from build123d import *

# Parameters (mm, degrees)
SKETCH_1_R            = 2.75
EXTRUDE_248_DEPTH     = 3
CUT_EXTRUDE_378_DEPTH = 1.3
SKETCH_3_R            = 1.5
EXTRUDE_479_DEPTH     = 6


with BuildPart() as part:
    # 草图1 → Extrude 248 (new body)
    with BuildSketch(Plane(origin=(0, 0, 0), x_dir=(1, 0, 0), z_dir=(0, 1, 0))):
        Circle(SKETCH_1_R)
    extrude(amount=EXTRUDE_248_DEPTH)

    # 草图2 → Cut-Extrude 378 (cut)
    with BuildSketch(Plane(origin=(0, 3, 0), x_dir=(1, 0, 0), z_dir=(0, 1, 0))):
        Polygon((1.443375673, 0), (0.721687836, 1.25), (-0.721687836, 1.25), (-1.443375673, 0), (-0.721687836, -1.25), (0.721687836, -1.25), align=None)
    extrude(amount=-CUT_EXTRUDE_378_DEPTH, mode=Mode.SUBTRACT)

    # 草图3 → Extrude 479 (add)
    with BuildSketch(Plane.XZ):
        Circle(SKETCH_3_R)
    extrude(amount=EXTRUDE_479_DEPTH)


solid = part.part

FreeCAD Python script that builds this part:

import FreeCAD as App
import Part
import Sketcher
from FreeCAD import Vector
Q = App.Units.Quantity

doc = App.newDocument("Part")
params = doc.addObject("Spreadsheet::Sheet", "Params")
for row, (alias, value) in enumerate([
    ("sketch1_diameter", "5.5 mm"),
    ("pad1_length", "3 mm"),
    ("pocket1_length", "1.3 mm"),
    ("sketch3_diameter", "3 mm"),
    ("pad2_length", "6 mm"),
], start=1):
    params.set(f"A{row}", alias)
    params.set(f"B{row}", "=" + value)
    params.setAlias(f"B{row}", alias)

body = doc.addObject("PartDesign::Body", "Body")

sketch1 = body.newObject("Sketcher::SketchObject", "Sketch")
sketch1.AttachmentSupport = (doc.getObject("XZ_Plane"), [""])
sketch1.MapMode = "FlatFace"
sketch1.addGeometry(Part.Circle(Vector(0, 0, 0), Vector(0, 0, 1), 2.8), False)
sketch1.addConstraint([
    Sketcher.Constraint("Coincident", 0, 3, -1, 1),
    Sketcher.Constraint("Diameter", 0, Q("5.5 mm")),
])
sketch1.setExpression("Constraints[1]", "Params.sketch1_diameter")
pad1 = body.newObject("PartDesign::Pad", "Pad")
pad1.Profile = sketch1
pad1.setExpression("Length", "Params.pad1_length")
pad1.Reversed = True

sketch2 = body.newObject("Sketcher::SketchObject", "Sketch001")
sketch2.AttachmentSupport = (doc.getObject("XZ_Plane"), [""])
sketch2.MapMode = "FlatFace"
sketch2.AttachmentOffset = App.Placement(Vector(0, 0, -3), App.Rotation())
sketch2.addGeometry([
    Part.LineSegment(Vector(1.4, 0, 0), Vector(0.7, -1.2, 0)),
    Part.LineSegment(Vector(0.7, -1.2, 0), Vector(-0.7, -1.2, 0)),
    Part.LineSegment(Vector(-0.7, -1.2, 0), Vector(-1.4, 0, 0)),
    Part.LineSegment(Vector(-1.4, 0, 0), Vector(-0.7, 1.2, 0)),
    Part.LineSegment(Vector(-0.7, 1.2, 0), Vector(0.7, 1.2, 0)),
    Part.LineSegment(Vector(0.7, 1.2, 0), Vector(1.4, 0, 0)),
], False)
sketch2.addConstraint([
    Sketcher.Constraint("Coincident", 0, 2, 1, 1),
    Sketcher.Constraint("Coincident", 1, 2, 2, 1),
    Sketcher.Constraint("Coincident", 2, 2, 3, 1),
    Sketcher.Constraint("Coincident", 3, 2, 4, 1),
    Sketcher.Constraint("Coincident", 4, 2, 5, 1),
    Sketcher.Constraint("Coincident", 5, 2, 0, 1),
    Sketcher.Constraint("Horizontal", 1),
    Sketcher.Constraint("Horizontal", 4),
    Sketcher.Constraint("Symmetric", 0, 2, 3, 2, -1, 1),
    Sketcher.Constraint("Symmetric", 2, 2, 5, 2, -1, 1),
    Sketcher.Constraint("PointOnObject", 2, 2, -1),
    Sketcher.Constraint("Parallel", 2, 5),
    Sketcher.Constraint("Vertical", 1, 2, 3, 2),
    Sketcher.Constraint("Angle", 0, Q("-120 deg")),
    Sketcher.Constraint("DistanceY", 1, 2, 3, 2, Q("2.5 mm")),
    Sketcher.Constraint("DistanceX", 1, 2, 1, 1, Q("1.443376 mm")),
])
pocket1 = body.newObject("PartDesign::Pocket", "Pocket")
pocket1.Profile = sketch2
pocket1.setExpression("Length", "Params.pocket1_length")
pocket1.Reversed = True

sketch3 = body.newObject("Sketcher::SketchObject", "Sketch002")
sketch3.AttachmentSupport = (doc.getObject("XZ_Plane"), [""])
sketch3.MapMode = "FlatFace"
sketch3.addGeometry(Part.Circle(Vector(0, 0, 0), Vector(0, 0, 1), 1.5), False)
sketch3.addConstraint([
    Sketcher.Constraint("Coincident", 0, 3, -1, 1),
    Sketcher.Constraint("Diameter", 0, Q("3 mm")),
])
sketch3.setExpression("Constraints[1]", "Params.sketch3_diameter")
pad2 = body.newObject("PartDesign::Pad", "Pad001")
pad2.Profile = sketch3
pad2.setExpression("Length", "Params.pad2_length")

doc.recompute()
